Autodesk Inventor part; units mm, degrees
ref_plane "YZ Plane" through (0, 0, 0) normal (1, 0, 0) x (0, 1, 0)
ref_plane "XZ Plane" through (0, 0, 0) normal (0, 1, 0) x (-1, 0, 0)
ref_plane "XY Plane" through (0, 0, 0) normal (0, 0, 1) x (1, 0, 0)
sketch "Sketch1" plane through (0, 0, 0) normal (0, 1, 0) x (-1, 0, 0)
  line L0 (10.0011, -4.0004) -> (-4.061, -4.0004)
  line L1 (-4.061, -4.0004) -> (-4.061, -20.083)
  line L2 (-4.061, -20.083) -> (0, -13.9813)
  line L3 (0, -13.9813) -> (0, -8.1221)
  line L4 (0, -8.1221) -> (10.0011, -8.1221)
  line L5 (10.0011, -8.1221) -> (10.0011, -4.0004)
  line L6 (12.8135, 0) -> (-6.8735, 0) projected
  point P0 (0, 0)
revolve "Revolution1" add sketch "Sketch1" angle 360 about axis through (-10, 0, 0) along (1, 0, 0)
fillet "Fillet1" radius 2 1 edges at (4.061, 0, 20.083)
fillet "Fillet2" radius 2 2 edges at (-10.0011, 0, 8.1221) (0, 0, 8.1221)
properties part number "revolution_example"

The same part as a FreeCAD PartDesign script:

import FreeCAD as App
import Part
import Sketcher
from FreeCAD import Vector
Q = App.Units.Quantity


def edges_at(feature, points):
    """Names of the edges that pass closest to the given points."""
    edges = feature.Shape.Edges
    near = lambda p: min(range(len(edges)), key=lambda i: edges[i].distToShape(Part.Vertex(*p))[0])
    return sorted({f"Edge{near(p) + 1}" for p in points})

doc = App.newDocument("Part")
params = doc.addObject("Spreadsheet::Sheet", "Params")
for row, (alias, value) in enumerate([
    ("revolution_angle", "360 deg"),
    ("fillet_radius", "2 mm"),
    ("fillet2_radius", "2 mm"),
], start=1):
    params.set(f"A{row}", alias)
    params.set(f"B{row}", "=" + value)
    params.setAlias(f"B{row}", alias)

body = doc.addObject("PartDesign::Body", "Body")

# Sketch on XZ plane
sketch1 = doc.addObject("Sketcher::SketchObject", "Sketch")
body.addObject(sketch1)
sketch1.AttachmentSupport = (doc.XZ_Plane, [""])
sketch1.MapMode = "FlatFace"
sketch1.addGeometry([
    Part.LineSegment(Vector(-10, -8.1, 0), Vector(-10, -4, 0)),  # 0
    Part.LineSegment(Vector(-10, -4, 0), Vector(4.1, -4, 0)),  # 1
    Part.LineSegment(Vector(4.1, -4, 0), Vector(4.1, -20.1, 0)),  # 2
    Part.LineSegment(Vector(4.1, -20.1, 0), Vector(0, -14, 0)),  # 3
    Part.LineSegment(Vector(0, -14, 0), Vector(0, -8.1, 0)),  # 4
    Part.LineSegment(Vector(0, -8.1, 0), Vector(-10, -8.1, 0)),  # 5
], False)
sketch1.addConstraint([
    Sketcher.Constraint("Coincident", 0, 2, 1, 1),
    Sketcher.Constraint("Coincident", 1, 2, 2, 1),
    Sketcher.Constraint("Coincident", 2, 2, 3, 1),
    Sketcher.Constraint("Coincident", 3, 2, 4, 1),
    Sketcher.Constraint("Coincident", 4, 2, 5, 1),
    Sketcher.Constraint("Coincident", 5, 2, 0, 1),
    Sketcher.Constraint("Vertical", 0),
    Sketcher.Constraint("Horizontal", 1),
    Sketcher.Constraint("Vertical", 2),
    Sketcher.Constraint("Vertical", 4),
    Sketcher.Constraint("Horizontal", 5),
    Sketcher.Constraint("PointOnObject", 3, 2, -2),
    Sketcher.Constraint("DistanceX", 1, 1, 1, 2, Q("14.062 mm")),
    Sketcher.Constraint("DistanceX", 5, 2, 5, 1, Q("10.001 mm")),
    Sketcher.Constraint("DistanceY", 0, 1, 0, 2, Q("4.1217 mm")),
    Sketcher.Constraint("DistanceY", 2, 2, 2, 1, Q("16.0826 mm")),
    Sketcher.Constraint("DistanceY", 4, 1, 4, 2, Q("5.8592 mm")),
    Sketcher.Constraint("DistanceY", 2, 2, -1, 1, Q("20.083 mm")),
])
revolution = doc.addObject("PartDesign::Revolution", "Revolution")
body.addObject(revolution)
revolution.Profile = sketch1
revolution.ReferenceAxis = (sketch1, ["H_Axis"])
revolution.setExpression("Angle", "Params.revolution_angle")
doc.recompute()

fillet = doc.addObject("PartDesign::Fillet", "Fillet")
body.addObject(fillet)
fillet.Base = (revolution, edges_at(revolution, [(4.061, 0, 20.083)]))
fillet.setExpression("Radius", "Params.fillet_radius")
doc.recompute()

fillet2 = doc.addObject("PartDesign::Fillet", "Fillet001")
body.addObject(fillet2)
fillet2.Base = (fillet, edges_at(fillet, [(-10.001, 0, 8.122), (0, 0, 8.122)]))
fillet2.setExpression("Radius", "Params.fillet2_radius")

doc.recompute()
